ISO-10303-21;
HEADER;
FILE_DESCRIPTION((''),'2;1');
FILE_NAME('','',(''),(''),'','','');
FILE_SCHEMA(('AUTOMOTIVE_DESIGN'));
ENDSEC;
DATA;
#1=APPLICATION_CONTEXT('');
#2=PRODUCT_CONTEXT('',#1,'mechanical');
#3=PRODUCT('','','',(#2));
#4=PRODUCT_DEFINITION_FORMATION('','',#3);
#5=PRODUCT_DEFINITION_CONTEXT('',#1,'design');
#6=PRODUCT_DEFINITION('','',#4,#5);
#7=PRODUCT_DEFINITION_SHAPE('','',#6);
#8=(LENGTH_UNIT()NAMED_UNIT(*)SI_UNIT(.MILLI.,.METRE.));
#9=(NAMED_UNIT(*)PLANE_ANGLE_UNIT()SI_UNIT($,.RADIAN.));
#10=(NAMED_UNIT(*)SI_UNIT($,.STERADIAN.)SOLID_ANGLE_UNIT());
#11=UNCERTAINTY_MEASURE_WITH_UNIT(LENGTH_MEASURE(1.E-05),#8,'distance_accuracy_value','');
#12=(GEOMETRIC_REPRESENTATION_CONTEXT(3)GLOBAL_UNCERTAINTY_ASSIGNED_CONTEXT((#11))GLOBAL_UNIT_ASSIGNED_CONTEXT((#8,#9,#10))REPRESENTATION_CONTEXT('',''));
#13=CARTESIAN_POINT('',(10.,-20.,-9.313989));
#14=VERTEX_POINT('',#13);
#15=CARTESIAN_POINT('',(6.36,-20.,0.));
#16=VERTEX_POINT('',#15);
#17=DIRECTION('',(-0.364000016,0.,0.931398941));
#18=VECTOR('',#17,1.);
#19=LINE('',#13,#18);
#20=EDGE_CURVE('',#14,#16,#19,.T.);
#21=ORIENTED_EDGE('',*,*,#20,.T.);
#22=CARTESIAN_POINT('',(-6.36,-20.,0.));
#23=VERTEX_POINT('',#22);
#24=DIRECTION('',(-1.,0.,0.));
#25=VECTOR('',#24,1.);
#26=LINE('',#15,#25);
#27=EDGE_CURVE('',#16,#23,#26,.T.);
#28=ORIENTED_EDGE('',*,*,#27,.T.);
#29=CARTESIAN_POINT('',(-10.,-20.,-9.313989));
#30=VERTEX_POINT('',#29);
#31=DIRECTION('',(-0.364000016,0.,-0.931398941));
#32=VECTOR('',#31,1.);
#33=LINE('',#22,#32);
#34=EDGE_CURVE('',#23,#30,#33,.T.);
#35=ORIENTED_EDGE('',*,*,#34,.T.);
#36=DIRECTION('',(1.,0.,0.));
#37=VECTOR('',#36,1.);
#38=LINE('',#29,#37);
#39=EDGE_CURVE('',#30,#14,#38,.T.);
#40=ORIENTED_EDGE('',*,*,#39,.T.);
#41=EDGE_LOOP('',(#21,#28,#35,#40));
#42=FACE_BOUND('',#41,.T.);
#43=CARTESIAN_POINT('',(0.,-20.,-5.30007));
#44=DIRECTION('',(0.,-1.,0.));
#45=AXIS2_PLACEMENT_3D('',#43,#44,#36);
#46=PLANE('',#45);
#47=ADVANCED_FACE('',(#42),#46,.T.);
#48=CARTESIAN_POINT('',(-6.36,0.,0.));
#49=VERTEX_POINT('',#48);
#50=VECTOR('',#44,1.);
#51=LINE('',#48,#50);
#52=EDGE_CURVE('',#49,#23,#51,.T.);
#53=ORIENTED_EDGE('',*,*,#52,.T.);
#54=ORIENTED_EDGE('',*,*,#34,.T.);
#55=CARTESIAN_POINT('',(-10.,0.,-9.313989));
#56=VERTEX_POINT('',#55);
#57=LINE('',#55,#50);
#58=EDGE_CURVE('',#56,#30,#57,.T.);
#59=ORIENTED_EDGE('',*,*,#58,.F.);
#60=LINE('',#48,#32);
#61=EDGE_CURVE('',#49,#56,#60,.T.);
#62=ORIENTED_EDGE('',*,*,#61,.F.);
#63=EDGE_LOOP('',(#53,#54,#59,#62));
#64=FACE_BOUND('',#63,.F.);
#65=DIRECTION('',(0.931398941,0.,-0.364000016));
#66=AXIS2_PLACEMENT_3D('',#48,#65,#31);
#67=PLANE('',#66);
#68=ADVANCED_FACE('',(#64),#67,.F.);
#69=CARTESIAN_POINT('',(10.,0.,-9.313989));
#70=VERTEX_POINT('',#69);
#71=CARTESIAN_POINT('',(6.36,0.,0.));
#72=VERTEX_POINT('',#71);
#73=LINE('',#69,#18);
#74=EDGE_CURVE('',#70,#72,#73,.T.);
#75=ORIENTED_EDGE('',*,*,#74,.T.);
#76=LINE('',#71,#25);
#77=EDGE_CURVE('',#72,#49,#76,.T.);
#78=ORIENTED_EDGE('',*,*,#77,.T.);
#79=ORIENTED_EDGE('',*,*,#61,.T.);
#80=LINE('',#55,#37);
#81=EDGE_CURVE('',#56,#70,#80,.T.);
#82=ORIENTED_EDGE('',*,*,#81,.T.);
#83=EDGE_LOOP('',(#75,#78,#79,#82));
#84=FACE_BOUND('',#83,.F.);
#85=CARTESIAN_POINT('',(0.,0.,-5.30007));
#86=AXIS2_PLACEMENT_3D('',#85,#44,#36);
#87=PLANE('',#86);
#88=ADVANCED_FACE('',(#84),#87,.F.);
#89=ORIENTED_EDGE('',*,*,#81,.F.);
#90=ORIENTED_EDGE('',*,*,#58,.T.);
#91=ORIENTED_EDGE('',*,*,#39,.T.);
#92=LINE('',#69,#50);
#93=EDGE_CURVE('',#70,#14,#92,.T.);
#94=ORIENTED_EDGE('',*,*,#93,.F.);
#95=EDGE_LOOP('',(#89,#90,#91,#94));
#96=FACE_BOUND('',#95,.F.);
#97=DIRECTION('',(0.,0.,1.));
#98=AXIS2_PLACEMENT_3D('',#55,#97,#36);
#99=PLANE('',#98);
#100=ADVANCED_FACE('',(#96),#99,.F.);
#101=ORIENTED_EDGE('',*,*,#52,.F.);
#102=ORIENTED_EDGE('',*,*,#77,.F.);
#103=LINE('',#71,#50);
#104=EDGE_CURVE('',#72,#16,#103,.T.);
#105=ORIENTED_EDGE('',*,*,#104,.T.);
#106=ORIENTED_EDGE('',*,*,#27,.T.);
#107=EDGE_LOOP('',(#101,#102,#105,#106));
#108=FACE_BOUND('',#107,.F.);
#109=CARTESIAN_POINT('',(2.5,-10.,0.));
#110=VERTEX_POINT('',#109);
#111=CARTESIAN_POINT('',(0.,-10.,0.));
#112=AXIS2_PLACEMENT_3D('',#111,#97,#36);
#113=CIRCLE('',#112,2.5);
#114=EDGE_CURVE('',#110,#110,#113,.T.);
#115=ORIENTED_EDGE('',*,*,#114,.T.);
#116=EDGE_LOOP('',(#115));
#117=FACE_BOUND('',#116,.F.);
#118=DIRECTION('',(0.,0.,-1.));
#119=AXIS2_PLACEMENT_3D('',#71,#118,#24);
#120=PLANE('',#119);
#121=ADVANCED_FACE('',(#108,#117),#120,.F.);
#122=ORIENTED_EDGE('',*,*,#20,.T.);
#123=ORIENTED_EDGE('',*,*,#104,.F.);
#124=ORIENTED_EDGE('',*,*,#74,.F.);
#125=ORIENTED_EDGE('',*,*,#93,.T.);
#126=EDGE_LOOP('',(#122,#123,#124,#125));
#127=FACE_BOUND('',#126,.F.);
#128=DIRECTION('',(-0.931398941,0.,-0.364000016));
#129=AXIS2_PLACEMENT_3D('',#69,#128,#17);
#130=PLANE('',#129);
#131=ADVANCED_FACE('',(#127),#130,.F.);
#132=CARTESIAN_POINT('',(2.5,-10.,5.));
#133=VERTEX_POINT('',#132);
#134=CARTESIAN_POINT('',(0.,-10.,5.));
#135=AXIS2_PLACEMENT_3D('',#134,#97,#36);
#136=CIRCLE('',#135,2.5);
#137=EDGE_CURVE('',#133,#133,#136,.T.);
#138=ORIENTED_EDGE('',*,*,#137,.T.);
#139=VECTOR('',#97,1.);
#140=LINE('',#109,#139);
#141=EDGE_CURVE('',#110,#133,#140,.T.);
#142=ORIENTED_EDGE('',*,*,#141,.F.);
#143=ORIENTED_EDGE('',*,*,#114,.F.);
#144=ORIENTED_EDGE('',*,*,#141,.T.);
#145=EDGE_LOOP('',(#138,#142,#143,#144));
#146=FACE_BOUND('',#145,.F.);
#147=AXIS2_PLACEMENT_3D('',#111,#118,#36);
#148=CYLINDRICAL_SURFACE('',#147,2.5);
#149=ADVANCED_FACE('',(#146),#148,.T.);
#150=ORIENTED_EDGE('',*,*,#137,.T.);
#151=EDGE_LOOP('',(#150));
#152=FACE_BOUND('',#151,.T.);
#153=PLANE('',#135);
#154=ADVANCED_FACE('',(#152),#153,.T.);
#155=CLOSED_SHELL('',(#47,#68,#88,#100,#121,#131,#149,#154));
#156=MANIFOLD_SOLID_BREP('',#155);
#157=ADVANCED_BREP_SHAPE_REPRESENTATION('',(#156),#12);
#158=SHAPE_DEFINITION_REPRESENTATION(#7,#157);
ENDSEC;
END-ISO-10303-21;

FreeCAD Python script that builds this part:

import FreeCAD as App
import Part
import Sketcher

V = App.Vector


def add_polygon(sketch, points):
    """Adds a closed chain of lines whose ends are joined by coincident constraints."""
    first, n = sketch.GeometryCount, len(points)
    for a, b in zip(points, points[1:] + points[:1]):
        sketch.addGeometry(Part.LineSegment(App.Vector(*a, 0), App.Vector(*b, 0)), False)
    for i in range(n):
        sketch.addConstraint(Sketcher.Constraint("Coincident", first + i, 2, first + (i + 1) % n, 1))

doc = App.newDocument("Part")
params = doc.addObject("Spreadsheet::Sheet", "Params")
for row, (alias, value) in enumerate([
    ("sketch1_width", "20 mm"),
    ("sketch1_length", "10 mm"),
    ("sketch1_width2", "12.72 mm"),
    ("pad1_length", "20 mm"),
    ("sketch2_diameter", "5 mm"),
    ("pad2_length", "5 mm"),
], start=1):
    params.set(f"A{row}", alias)
    params.set(f"B{row}", "=" + value)
    params.setAlias(f"B{row}", alias)

body = doc.addObject("PartDesign::Body", "Body")

sketch1 = doc.addObject("Sketcher::SketchObject", "Sketch")
body.addObject(sketch1)
sketch1.AttachmentSupport = (doc.XZ_Plane, [""])
sketch1.MapMode = "FlatFace"
add_polygon(sketch1, [(6, 0), (-6, 0), (-10, -9), (10, -9)])
sketch1.addConstraint([
    Sketcher.Constraint("Horizontal", 0),
    Sketcher.Constraint("Horizontal", 2),
    Sketcher.Constraint("Symmetric", 0, 2, 3, 2, -1, 1),
    Sketcher.Constraint("Equal", 1, 3),
    Sketcher.Constraint("DistanceX", 2, 1, 2, 2, 20.0),
    Sketcher.Constraint("Distance", 1, 10.0),
    Sketcher.Constraint("DistanceX", 0, 2, 0, 1, 12.72),
])
sketch1.setExpression("Constraints[8]", "Params.sketch1_width")
sketch1.setExpression("Constraints[9]", "Params.sketch1_length")
sketch1.setExpression("Constraints[10]", "Params.sketch1_width2")
pad1 = doc.addObject("PartDesign::Pad", "Pad")
body.addObject(pad1)
pad1.Profile = sketch1
pad1.setExpression("Length", "Params.pad1_length")

sketch2 = doc.addObject("Sketcher::SketchObject", "Sketch001")
body.addObject(sketch2)
sketch2.AttachmentSupport = (doc.XY_Plane, [""])
sketch2.MapMode = "FlatFace"
sketch2.addGeometry(Part.Circle(V(0, -10, 0), V(0, 0, 1), 2.5), False)
sketch2.addConstraint([
    Sketcher.Constraint("PointOnObject", 0, 3, -2),
    Sketcher.Constraint("Diameter", 0, 5.0),
    Sketcher.Constraint("DistanceY", 0, 3, -1, 1, 10.0),
])
sketch2.setExpression("Constraints[1]", "Params.sketch2_diameter")
pad2 = doc.addObject("PartDesign::Pad", "Pad001")
body.addObject(pad2)
pad2.Profile = sketch2
pad2.setExpression("Length", "Params.pad2_length")

doc.recompute()
